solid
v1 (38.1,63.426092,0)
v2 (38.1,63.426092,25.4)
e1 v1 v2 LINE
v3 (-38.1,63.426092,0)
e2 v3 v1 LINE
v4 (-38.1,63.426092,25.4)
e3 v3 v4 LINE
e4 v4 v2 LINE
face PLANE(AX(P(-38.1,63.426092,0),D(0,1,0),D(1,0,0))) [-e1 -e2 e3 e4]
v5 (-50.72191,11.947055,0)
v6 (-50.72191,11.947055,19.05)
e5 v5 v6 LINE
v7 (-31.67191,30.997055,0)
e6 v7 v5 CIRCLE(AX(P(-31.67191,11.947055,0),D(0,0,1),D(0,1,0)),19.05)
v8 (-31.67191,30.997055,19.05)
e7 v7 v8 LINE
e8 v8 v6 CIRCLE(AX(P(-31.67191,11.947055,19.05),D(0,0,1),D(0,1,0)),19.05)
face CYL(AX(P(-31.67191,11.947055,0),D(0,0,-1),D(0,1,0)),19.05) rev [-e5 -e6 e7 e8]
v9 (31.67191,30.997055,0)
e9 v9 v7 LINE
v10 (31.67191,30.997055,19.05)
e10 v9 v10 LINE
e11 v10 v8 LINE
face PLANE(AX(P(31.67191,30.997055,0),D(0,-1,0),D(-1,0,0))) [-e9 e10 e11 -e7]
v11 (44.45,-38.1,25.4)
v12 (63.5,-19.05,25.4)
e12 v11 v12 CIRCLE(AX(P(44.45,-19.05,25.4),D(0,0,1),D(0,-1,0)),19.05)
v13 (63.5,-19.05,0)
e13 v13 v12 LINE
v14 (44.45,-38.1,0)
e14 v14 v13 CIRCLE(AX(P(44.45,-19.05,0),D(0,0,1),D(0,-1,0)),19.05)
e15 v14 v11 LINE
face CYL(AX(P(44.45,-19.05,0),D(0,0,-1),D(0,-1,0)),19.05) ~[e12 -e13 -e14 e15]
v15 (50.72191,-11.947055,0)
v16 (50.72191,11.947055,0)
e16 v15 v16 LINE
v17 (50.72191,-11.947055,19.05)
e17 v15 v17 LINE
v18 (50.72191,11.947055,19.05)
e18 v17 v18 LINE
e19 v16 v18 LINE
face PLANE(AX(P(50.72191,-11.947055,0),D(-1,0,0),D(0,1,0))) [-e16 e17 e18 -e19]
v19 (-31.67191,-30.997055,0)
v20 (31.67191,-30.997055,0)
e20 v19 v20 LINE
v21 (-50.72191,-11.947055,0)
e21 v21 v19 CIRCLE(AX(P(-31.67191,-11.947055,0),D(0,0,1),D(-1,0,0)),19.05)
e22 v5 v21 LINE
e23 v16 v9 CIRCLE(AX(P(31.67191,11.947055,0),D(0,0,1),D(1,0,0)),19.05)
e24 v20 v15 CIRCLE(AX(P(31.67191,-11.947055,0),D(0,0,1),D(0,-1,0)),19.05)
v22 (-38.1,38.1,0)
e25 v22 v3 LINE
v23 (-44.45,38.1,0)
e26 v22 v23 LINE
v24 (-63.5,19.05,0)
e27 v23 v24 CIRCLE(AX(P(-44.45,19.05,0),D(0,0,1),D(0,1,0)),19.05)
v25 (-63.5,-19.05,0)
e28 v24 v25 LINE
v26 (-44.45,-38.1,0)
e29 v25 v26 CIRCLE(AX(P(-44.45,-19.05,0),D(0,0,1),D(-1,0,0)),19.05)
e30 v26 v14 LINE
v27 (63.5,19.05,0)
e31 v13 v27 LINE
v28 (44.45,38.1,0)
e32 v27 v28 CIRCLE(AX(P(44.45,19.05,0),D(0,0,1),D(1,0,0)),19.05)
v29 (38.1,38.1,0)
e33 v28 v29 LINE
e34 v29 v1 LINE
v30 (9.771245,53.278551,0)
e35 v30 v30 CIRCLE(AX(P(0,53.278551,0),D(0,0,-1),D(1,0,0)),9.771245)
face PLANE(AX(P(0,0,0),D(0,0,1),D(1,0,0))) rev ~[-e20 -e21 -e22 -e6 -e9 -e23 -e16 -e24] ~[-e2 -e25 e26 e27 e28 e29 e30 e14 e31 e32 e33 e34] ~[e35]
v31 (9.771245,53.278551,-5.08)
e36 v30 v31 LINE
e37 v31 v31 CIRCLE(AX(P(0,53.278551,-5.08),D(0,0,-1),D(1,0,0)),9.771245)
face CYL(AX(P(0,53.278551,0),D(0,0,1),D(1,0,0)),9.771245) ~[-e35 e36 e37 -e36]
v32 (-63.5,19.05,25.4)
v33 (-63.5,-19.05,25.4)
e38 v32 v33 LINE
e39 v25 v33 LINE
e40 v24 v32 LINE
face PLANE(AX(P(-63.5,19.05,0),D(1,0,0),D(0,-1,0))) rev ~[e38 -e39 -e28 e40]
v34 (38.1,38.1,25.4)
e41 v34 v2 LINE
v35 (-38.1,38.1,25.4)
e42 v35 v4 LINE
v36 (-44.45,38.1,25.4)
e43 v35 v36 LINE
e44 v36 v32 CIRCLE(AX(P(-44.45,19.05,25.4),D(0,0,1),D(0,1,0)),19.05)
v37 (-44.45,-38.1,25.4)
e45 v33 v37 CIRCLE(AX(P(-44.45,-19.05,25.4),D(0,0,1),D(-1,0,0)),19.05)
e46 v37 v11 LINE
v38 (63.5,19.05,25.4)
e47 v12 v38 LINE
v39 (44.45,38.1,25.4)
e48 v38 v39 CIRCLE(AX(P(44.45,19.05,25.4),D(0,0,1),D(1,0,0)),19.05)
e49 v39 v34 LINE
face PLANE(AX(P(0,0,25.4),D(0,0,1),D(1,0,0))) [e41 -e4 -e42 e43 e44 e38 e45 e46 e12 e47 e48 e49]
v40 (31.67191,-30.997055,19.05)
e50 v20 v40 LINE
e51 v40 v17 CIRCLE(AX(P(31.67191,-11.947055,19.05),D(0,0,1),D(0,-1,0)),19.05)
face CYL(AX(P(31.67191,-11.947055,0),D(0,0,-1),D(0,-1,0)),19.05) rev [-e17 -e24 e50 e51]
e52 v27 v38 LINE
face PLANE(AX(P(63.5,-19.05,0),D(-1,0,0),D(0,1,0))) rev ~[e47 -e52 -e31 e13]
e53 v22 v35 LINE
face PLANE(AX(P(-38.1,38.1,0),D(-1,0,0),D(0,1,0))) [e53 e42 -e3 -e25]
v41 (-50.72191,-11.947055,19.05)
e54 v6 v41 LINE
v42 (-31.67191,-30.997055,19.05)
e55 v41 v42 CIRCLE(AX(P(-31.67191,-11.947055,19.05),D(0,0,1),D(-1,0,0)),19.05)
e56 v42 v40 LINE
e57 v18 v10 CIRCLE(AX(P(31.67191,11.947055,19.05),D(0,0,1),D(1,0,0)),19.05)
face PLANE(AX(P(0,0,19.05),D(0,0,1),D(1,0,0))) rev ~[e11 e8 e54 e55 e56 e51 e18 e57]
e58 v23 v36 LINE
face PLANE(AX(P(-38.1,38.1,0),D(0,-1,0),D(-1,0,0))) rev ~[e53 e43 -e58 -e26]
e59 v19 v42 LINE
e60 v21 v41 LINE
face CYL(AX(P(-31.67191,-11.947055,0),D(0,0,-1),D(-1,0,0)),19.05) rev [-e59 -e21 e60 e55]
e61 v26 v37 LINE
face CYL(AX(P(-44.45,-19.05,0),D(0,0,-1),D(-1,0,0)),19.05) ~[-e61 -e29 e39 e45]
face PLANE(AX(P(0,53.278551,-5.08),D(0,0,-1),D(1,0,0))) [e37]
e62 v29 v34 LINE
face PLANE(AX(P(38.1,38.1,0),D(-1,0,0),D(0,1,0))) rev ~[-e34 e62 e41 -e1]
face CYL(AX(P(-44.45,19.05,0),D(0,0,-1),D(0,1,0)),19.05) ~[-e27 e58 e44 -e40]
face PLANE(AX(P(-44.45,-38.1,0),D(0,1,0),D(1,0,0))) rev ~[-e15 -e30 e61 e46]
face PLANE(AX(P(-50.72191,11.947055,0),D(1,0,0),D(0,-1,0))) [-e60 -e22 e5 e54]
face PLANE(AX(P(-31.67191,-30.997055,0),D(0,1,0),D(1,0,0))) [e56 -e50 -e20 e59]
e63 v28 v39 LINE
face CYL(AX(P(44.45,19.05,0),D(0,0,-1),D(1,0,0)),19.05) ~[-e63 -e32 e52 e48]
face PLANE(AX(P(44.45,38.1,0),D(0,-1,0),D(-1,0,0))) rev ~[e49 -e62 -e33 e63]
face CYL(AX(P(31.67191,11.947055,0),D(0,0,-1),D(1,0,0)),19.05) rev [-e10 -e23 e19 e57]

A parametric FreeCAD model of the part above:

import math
import FreeCAD as App
import Part
import Sketcher
Q = App.Units.Quantity

doc = App.newDocument("Part")
body = doc.addObject("PartDesign::Body", "Body")

# Sketch on XY plane
sketch1 = body.newObject("Sketcher::SketchObject", "Sketch")
sketch1.AttachmentSupport = (doc.getObject("XY_Plane"), [""])
sketch1.MapMode = "FlatFace"
sketch1.addGeometry(Part.ArcOfCircle(Part.Circle(App.Vector(-44, -19, 0), App.Vector(0, 0, 1), 19), math.radians(180), math.radians(270)), False)
sketch1.addGeometry(Part.LineSegment(App.Vector(-44, -38, 0), App.Vector(44, -38, 0)), False)
sketch1.addGeometry(Part.ArcOfCircle(Part.Circle(App.Vector(44, -19, 0), App.Vector(0, 0, 1), 19), math.radians(-90), math.radians(0)), False)
sketch1.addGeometry(Part.LineSegment(App.Vector(64, -19, 0), App.Vector(64, 19, 0)), False)
sketch1.addGeometry(Part.ArcOfCircle(Part.Circle(App.Vector(44, 19, 0), App.Vector(0, 0, 1), 19), math.radians(0), math.radians(90)), False)
sketch1.addGeometry(Part.LineSegment(App.Vector(44, 38, 0), App.Vector(38, 38, 0)), False)
sketch1.addGeometry(Part.LineSegment(App.Vector(38, 38, 0), App.Vector(38, 63, 0)), False)
sketch1.addGeometry(Part.LineSegment(App.Vector(38, 63, 0), App.Vector(-38, 63, 0)), False)
sketch1.addGeometry(Part.LineSegment(App.Vector(-38, 63, 0), App.Vector(-38, 38, 0)), False)
sketch1.addGeometry(Part.LineSegment(App.Vector(-38, 38, 0), App.Vector(-44, 38, 0)), False)
sketch1.addGeometry(Part.ArcOfCircle(Part.Circle(App.Vector(-44, 19, 0), App.Vector(0, 0, 1), 19), math.radians(90), math.radians(180)), False)
sketch1.addGeometry(Part.LineSegment(App.Vector(-64, 19, 0), App.Vector(-64, -19, 0)), False)
sketch1.addConstraint(Sketcher.Constraint("Tangent", 0, 2, 1, 1))
sketch1.addConstraint(Sketcher.Constraint("Tangent", 1, 2, 2, 1))
sketch1.addConstraint(Sketcher.Constraint("Tangent", 2, 2, 3, 1))
sketch1.addConstraint(Sketcher.Constraint("Tangent", 3, 2, 4, 1))
sketch1.addConstraint(Sketcher.Constraint("Tangent", 4, 2, 5, 1))
sketch1.addConstraint(Sketcher.Constraint("Coincident", 5, 2, 6, 1))
sketch1.addConstraint(Sketcher.Constraint("Coincident", 6, 2, 7, 1))
sketch1.addConstraint(Sketcher.Constraint("Coincident", 7, 2, 8, 1))
sketch1.addConstraint(Sketcher.Constraint("Coincident", 8, 2, 9, 1))
sketch1.addConstraint(Sketcher.Constraint("Tangent", 9, 2, 10, 1))
sketch1.addConstraint(Sketcher.Constraint("Tangent", 10, 2, 11, 1))
sketch1.addConstraint(Sketcher.Constraint("Tangent", 11, 2, 0, 1))
sketch1.addConstraint(Sketcher.Constraint("Horizontal", 1))
sketch1.addConstraint(Sketcher.Constraint("Vertical", 3))
sketch1.addConstraint(Sketcher.Constraint("Horizontal", 5))
sketch1.addConstraint(Sketcher.Constraint("Vertical", 6))
sketch1.addConstraint(Sketcher.Constraint("Horizontal", 7))
sketch1.addConstraint(Sketcher.Constraint("Vertical", 8))
sketch1.addConstraint(Sketcher.Constraint("Horizontal", 9))
sketch1.addConstraint(Sketcher.Constraint("Vertical", 11))
sketch1.addConstraint(Sketcher.Constraint("Equal", 0, 2))
sketch1.addConstraint(Sketcher.Constraint("Equal", 2, 4))
sketch1.addConstraint(Sketcher.Constraint("Equal", 4, 10))
sketch1.addConstraint(Sketcher.Constraint("Symmetric", 0, 3, 4, 3, -1, 1))
sketch1.addConstraint(Sketcher.Constraint("Symmetric", 5, 2, 8, 2, -2))
sketch1.addConstraint(Sketcher.Constraint("DistanceX", 7, 2, 7, 1, Q("3 in")))
sketch1.addConstraint(Sketcher.Constraint("Radius", 0, Q("0.75 in")))
sketch1.addConstraint(Sketcher.Constraint("DistanceX", 1, 1, 1, 2, Q("3.5 in")))
sketch1.addConstraint(Sketcher.Constraint("DistanceY", 3, 1, 3, 2, Q("1.5 in")))
sketch1.addConstraint(Sketcher.Constraint("DistanceY", 6, 1, 6, 2, 25.326092))
pad1 = body.newObject("PartDesign::Pad", "Pad")
pad1.Profile = sketch1
pad1.Length = Q("1 in")

# Sketch on XY plane
sketch2 = body.newObject("Sketcher::SketchObject", "Sketch001")
sketch2.AttachmentSupport = (doc.getObject("XY_Plane"), [""])
sketch2.MapMode = "FlatFace"
sketch2.addGeometry(Part.LineSegment(App.Vector(32, 31, 0), App.Vector(-32, 31, 0)), False)
sketch2.addGeometry(Part.ArcOfCircle(Part.Circle(App.Vector(-32, 12, 0), App.Vector(0, 0, 1), 19), math.radians(90), math.radians(180)), False)
sketch2.addGeometry(Part.LineSegment(App.Vector(-51, 12, 0), App.Vector(-51, -12, 0)), False)
sketch2.addGeometry(Part.ArcOfCircle(Part.Circle(App.Vector(-32, -12, 0), App.Vector(0, 0, 1), 19), math.radians(180), math.radians(270)), False)
sketch2.addGeometry(Part.LineSegment(App.Vector(-32, -31, 0), App.Vector(32, -31, 0)), False)
sketch2.addGeometry(Part.ArcOfCircle(Part.Circle(App.Vector(32, -12, 0), App.Vector(0, 0, 1), 19), math.radians(-90), math.radians(0)), False)
sketch2.addGeometry(Part.LineSegment(App.Vector(51, -12, 0), App.Vector(51, 12, 0)), False)
sketch2.addGeometry(Part.ArcOfCircle(Part.Circle(App.Vector(32, 12, 0), App.Vector(0, 0, 1), 19), math.radians(0), math.radians(90)), False)
sketch2.addConstraint(Sketcher.Constraint("Tangent", 0, 2, 1, 1))
sketch2.addConstraint(Sketcher.Constraint("Tangent", 1, 2, 2, 1))
sketch2.addConstraint(Sketcher.Constraint("Tangent", 2, 2, 3, 1))
sketch2.addConstraint(Sketcher.Constraint("Tangent", 3, 2, 4, 1))
sketch2.addConstraint(Sketcher.Constraint("Tangent", 4, 2, 5, 1))
sketch2.addConstraint(Sketcher.Constraint("Tangent", 5, 2, 6, 1))
sketch2.addConstraint(Sketcher.Constraint("Tangent", 6, 2, 7, 1))
sketch2.addConstraint(Sketcher.Constraint("Tangent", 7, 2, 0, 1))
sketch2.addConstraint(Sketcher.Constraint("Horizontal", 0))
sketch2.addConstraint(Sketcher.Constraint("Vertical", 2))
sketch2.addConstraint(Sketcher.Constraint("Horizontal", 4))
sketch2.addConstraint(Sketcher.Constraint("Vertical", 6))
sketch2.addConstraint(Sketcher.Constraint("Equal", 1, 3))
sketch2.addConstraint(Sketcher.Constraint("Equal", 3, 5))
sketch2.addConstraint(Sketcher.Constraint("Equal", 5, 7))
sketch2.addConstraint(Sketcher.Constraint("Symmetric", 1, 3, 5, 3, -1, 1))
sketch2.addConstraint(Sketcher.Constraint("Radius", 1, Q("0.75 in")))
sketch2.addConstraint(Sketcher.Constraint("DistanceX", 0, 2, 0, 1, 63.34382))
sketch2.addConstraint(Sketcher.Constraint("DistanceY", 2, 2, 2, 1, 23.894109))
pocket1 = body.newObject("PartDesign::Pocket", "Pocket")
pocket1.Profile = sketch2
pocket1.Length = Q("0.75 in")
pocket1.Reversed = True

# Sketch on XY plane
sketch3 = body.newObject("Sketcher::SketchObject", "Sketch002")
sketch3.AttachmentSupport = (doc.getObject("XY_Plane"), [""])
sketch3.MapMode = "FlatFace"
sketch3.addGeometry(Part.Circle(App.Vector(0, 53, 0), App.Vector(0, 0, 1), 10), False)
sketch3.addConstraint(Sketcher.Constraint("PointOnObject", 0, 3, -2))
sketch3.addConstraint(Sketcher.Constraint("Diameter", 0, 19.542491))
sketch3.addConstraint(Sketcher.Constraint("DistanceY", -1, 1, 0, 3, 53.278551))
pad2 = body.newObject("PartDesign::Pad", "Pad001")
pad2.Profile = sketch3
pad2.Length = Q("0.2 in")
pad2.Reversed = True

doc.recompute()
